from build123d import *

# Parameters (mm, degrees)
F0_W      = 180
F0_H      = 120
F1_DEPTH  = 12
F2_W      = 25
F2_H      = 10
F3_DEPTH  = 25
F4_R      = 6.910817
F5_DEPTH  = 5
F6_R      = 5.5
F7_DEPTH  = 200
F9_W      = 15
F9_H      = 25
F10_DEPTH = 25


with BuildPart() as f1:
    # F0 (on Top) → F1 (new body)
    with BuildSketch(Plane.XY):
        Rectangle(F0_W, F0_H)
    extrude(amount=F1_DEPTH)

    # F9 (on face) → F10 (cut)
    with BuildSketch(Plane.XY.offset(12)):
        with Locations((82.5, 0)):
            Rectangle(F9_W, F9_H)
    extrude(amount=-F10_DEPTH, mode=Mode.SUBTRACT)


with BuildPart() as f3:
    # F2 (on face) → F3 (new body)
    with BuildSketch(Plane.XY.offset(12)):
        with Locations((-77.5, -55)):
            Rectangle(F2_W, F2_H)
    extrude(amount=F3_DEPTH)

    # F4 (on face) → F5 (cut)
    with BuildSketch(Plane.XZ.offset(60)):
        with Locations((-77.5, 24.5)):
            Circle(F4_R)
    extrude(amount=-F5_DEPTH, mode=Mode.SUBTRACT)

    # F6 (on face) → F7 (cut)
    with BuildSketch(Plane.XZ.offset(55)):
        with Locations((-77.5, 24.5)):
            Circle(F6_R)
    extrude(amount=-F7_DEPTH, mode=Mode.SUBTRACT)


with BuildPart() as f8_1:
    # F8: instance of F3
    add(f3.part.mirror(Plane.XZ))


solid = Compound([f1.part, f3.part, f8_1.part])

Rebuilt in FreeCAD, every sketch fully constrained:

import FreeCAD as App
import Part
import Sketcher
from FreeCAD import Vector


def add_polygon(sketch, points):
    """Adds a closed chain of lines whose ends are joined by coincident constraints."""
    first, n = sketch.GeometryCount, len(points)
    for a, b in zip(points, points[1:] + points[:1]):
        sketch.addGeometry(Part.LineSegment(App.Vector(*a, 0), App.Vector(*b, 0)), False)
    for i in range(n):
        sketch.addConstraint(Sketcher.Constraint("Coincident", first + i, 2, first + (i + 1) % n, 1))

doc = App.newDocument("Part")
params = doc.addObject("Spreadsheet::Sheet", "Params")
for row, (alias, value) in enumerate([
    ("sketch1_width", "180 mm"),
    ("sketch1_height", "120 mm"),
    ("pad1_length", "12 mm"),
    ("sketch2_width", "15 mm"),
    ("sketch2_height", "25 mm"),
    ("pocket1_length", "25 mm"),
    ("sketch3_width", "25 mm"),
    ("sketch3_height", "10 mm"),
    ("pad2_length", "25 mm"),
    ("pocket2_length", "5 mm"),
    ("sketch5_diameter", "11 mm"),
    ("pocket3_length", "200 mm"),
], start=1):
    params.set(f"A{row}", alias)
    params.set(f"B{row}", "=" + value)
    params.setAlias(f"B{row}", alias)

body = doc.addObject("PartDesign::Body", "Body")

sketch1 = body.newObject("Sketcher::SketchObject", "Sketch")
sketch1.AttachmentSupport = (doc.getObject("XY_Plane"), [""])
sketch1.MapMode = "FlatFace"
add_polygon(sketch1, [(-90, 60), (-90, -60), (90, -60), (90, 60)])
sketch1.addConstraint(Sketcher.Constraint("Vertical", 0))
sketch1.addConstraint(Sketcher.Constraint("Horizontal", 1))
sketch1.addConstraint(Sketcher.Constraint("Vertical", 2))
sketch1.addConstraint(Sketcher.Constraint("Horizontal", 3))
sketch1.addConstraint(Sketcher.Constraint("Symmetric", 0, 2, 2, 2, -1, 1))
sketch1.addConstraint(Sketcher.Constraint("DistanceX", 1, 1, 1, 2, 180.0))
sketch1.addConstraint(Sketcher.Constraint("DistanceY", 0, 2, 0, 1, 120.0))
sketch1.setExpression("Constraints[9]", "Params.sketch1_width")
sketch1.setExpression("Constraints[10]", "Params.sketch1_height")
pad1 = body.newObject("PartDesign::Pad", "Pad")
pad1.Profile = sketch1
pad1.setExpression("Length", "Params.pad1_length")

sketch2 = body.newObject("Sketcher::SketchObject", "Sketch001")
sketch2.AttachmentSupport = (doc.getObject("XY_Plane"), [""])
sketch2.MapMode = "FlatFace"
sketch2.AttachmentOffset = App.Placement(Vector(0, 0, 12), App.Rotation())
add_polygon(sketch2, [(75, 12), (75, -12), (90, -12), (90, 12)])
sketch2.addConstraint(Sketcher.Constraint("Vertical", 0))
sketch2.addConstraint(Sketcher.Constraint("Horizontal", 1))
sketch2.addConstraint(Sketcher.Constraint("Vertical", 2))
sketch2.addConstraint(Sketcher.Constraint("Horizontal", 3))
sketch2.addConstraint(Sketcher.Constraint("DistanceX", 1, 1, 1, 2, 15.0))
sketch2.addConstraint(Sketcher.Constraint("DistanceY", 0, 2, 0, 1, 25.0))
sketch2.addConstraint(Sketcher.Constraint("DistanceX", -1, 1, 0, 2, 75.0))
sketch2.addConstraint(Sketcher.Constraint("DistanceY", 0, 2, -1, 1, 12.5))
sketch2.setExpression("Constraints[8]", "Params.sketch2_width")
sketch2.setExpression("Constraints[9]", "Params.sketch2_height")
pocket1 = body.newObject("PartDesign::Pocket", "Pocket")
pocket1.Profile = sketch2
pocket1.setExpression("Length", "Params.pocket1_length")
body2 = doc.addObject("PartDesign::Body", "Body001")

sketch3 = body2.newObject("Sketcher::SketchObject", "Sketch002")
sketch3.AttachmentSupport = (doc.getObject("XY_Plane001"), [""])
sketch3.MapMode = "FlatFace"
sketch3.AttachmentOffset = App.Placement(Vector(0, 0, 12), App.Rotation())
add_polygon(sketch3, [(-90, -50), (-90, -60), (-65, -60), (-65, -50)])
sketch3.addConstraint(Sketcher.Constraint("Vertical", 0))
sketch3.addConstraint(Sketcher.Constraint("Horizontal", 1))
sketch3.addConstraint(Sketcher.Constraint("Vertical", 2))
sketch3.addConstraint(Sketcher.Constraint("Horizontal", 3))
sketch3.addConstraint(Sketcher.Constraint("DistanceX", 1, 1, 1, 2, 25.0))
sketch3.addConstraint(Sketcher.Constraint("DistanceY", 0, 2, 0, 1, 10.0))
sketch3.addConstraint(Sketcher.Constraint("DistanceX", 0, 2, -1, 1, 90.0))
sketch3.addConstraint(Sketcher.Constraint("DistanceY", 0, 2, -1, 1, 60.0))
sketch3.setExpression("Constraints[8]", "Params.sketch3_width")
sketch3.setExpression("Constraints[9]", "Params.sketch3_height")
pad2 = body2.newObject("PartDesign::Pad", "Pad001")
pad2.Profile = sketch3
pad2.setExpression("Length", "Params.pad2_length")

sketch4 = body2.newObject("Sketcher::SketchObject", "Sketch003")
sketch4.AttachmentSupport = (doc.getObject("XZ_Plane001"), [""])
sketch4.MapMode = "FlatFace"
sketch4.AttachmentOffset = App.Placement(Vector(0, 0, 60), App.Rotation())
sketch4.addGeometry(Part.Circle(Vector(-78, 24, 0), Vector(0, 0, 1), 7), False)
sketch4.addConstraint(Sketcher.Constraint("DistanceX", 0, 3, -1, 1, 77.5))
sketch4.addConstraint(Sketcher.Constraint("DistanceY", -1, 1, 0, 3, 24.5))
sketch4.addConstraint(Sketcher.Constraint("Diameter", 0, 13.821634))
pocket2 = body2.newObject("PartDesign::Pocket", "Pocket001")
pocket2.Profile = sketch4
pocket2.setExpression("Length", "Params.pocket2_length")

sketch5 = body2.newObject("Sketcher::SketchObject", "Sketch004")
sketch5.AttachmentSupport = (doc.getObject("XZ_Plane001"), [""])
sketch5.MapMode = "FlatFace"
sketch5.AttachmentOffset = App.Placement(Vector(0, 0, 55), App.Rotation())
sketch5.addGeometry(Part.Circle(Vector(-78, 24, 0), Vector(0, 0, 1), 6), False)
sketch5.addConstraint(Sketcher.Constraint("Diameter", 0, 11.0))
sketch5.addConstraint(Sketcher.Constraint("DistanceX", 0, 3, -1, 1, 77.5))
sketch5.addConstraint(Sketcher.Constraint("DistanceY", -1, 1, 0, 3, 24.5))
sketch5.setExpression("Constraints[0]", "Params.sketch5_diameter")
pocket3 = body2.newObject("PartDesign::Pocket", "Pocket002")
pocket3.Profile = sketch5
pocket3.setExpression("Length", "Params.pocket3_length")
body3 = doc.addObject("PartDesign::Body", "Body002")
doc.recompute()

mirroring = doc.addObject("Part::Mirroring", "Mirroring")
mirroring.Source = body2
mirroring.Base = Vector(0, 0, 0)
mirroring.Normal = Vector(0, -1, 0)
body3.BaseFeature = mirroring
doc.recompute()
mirroring.Visibility = False

doc.recompute()
